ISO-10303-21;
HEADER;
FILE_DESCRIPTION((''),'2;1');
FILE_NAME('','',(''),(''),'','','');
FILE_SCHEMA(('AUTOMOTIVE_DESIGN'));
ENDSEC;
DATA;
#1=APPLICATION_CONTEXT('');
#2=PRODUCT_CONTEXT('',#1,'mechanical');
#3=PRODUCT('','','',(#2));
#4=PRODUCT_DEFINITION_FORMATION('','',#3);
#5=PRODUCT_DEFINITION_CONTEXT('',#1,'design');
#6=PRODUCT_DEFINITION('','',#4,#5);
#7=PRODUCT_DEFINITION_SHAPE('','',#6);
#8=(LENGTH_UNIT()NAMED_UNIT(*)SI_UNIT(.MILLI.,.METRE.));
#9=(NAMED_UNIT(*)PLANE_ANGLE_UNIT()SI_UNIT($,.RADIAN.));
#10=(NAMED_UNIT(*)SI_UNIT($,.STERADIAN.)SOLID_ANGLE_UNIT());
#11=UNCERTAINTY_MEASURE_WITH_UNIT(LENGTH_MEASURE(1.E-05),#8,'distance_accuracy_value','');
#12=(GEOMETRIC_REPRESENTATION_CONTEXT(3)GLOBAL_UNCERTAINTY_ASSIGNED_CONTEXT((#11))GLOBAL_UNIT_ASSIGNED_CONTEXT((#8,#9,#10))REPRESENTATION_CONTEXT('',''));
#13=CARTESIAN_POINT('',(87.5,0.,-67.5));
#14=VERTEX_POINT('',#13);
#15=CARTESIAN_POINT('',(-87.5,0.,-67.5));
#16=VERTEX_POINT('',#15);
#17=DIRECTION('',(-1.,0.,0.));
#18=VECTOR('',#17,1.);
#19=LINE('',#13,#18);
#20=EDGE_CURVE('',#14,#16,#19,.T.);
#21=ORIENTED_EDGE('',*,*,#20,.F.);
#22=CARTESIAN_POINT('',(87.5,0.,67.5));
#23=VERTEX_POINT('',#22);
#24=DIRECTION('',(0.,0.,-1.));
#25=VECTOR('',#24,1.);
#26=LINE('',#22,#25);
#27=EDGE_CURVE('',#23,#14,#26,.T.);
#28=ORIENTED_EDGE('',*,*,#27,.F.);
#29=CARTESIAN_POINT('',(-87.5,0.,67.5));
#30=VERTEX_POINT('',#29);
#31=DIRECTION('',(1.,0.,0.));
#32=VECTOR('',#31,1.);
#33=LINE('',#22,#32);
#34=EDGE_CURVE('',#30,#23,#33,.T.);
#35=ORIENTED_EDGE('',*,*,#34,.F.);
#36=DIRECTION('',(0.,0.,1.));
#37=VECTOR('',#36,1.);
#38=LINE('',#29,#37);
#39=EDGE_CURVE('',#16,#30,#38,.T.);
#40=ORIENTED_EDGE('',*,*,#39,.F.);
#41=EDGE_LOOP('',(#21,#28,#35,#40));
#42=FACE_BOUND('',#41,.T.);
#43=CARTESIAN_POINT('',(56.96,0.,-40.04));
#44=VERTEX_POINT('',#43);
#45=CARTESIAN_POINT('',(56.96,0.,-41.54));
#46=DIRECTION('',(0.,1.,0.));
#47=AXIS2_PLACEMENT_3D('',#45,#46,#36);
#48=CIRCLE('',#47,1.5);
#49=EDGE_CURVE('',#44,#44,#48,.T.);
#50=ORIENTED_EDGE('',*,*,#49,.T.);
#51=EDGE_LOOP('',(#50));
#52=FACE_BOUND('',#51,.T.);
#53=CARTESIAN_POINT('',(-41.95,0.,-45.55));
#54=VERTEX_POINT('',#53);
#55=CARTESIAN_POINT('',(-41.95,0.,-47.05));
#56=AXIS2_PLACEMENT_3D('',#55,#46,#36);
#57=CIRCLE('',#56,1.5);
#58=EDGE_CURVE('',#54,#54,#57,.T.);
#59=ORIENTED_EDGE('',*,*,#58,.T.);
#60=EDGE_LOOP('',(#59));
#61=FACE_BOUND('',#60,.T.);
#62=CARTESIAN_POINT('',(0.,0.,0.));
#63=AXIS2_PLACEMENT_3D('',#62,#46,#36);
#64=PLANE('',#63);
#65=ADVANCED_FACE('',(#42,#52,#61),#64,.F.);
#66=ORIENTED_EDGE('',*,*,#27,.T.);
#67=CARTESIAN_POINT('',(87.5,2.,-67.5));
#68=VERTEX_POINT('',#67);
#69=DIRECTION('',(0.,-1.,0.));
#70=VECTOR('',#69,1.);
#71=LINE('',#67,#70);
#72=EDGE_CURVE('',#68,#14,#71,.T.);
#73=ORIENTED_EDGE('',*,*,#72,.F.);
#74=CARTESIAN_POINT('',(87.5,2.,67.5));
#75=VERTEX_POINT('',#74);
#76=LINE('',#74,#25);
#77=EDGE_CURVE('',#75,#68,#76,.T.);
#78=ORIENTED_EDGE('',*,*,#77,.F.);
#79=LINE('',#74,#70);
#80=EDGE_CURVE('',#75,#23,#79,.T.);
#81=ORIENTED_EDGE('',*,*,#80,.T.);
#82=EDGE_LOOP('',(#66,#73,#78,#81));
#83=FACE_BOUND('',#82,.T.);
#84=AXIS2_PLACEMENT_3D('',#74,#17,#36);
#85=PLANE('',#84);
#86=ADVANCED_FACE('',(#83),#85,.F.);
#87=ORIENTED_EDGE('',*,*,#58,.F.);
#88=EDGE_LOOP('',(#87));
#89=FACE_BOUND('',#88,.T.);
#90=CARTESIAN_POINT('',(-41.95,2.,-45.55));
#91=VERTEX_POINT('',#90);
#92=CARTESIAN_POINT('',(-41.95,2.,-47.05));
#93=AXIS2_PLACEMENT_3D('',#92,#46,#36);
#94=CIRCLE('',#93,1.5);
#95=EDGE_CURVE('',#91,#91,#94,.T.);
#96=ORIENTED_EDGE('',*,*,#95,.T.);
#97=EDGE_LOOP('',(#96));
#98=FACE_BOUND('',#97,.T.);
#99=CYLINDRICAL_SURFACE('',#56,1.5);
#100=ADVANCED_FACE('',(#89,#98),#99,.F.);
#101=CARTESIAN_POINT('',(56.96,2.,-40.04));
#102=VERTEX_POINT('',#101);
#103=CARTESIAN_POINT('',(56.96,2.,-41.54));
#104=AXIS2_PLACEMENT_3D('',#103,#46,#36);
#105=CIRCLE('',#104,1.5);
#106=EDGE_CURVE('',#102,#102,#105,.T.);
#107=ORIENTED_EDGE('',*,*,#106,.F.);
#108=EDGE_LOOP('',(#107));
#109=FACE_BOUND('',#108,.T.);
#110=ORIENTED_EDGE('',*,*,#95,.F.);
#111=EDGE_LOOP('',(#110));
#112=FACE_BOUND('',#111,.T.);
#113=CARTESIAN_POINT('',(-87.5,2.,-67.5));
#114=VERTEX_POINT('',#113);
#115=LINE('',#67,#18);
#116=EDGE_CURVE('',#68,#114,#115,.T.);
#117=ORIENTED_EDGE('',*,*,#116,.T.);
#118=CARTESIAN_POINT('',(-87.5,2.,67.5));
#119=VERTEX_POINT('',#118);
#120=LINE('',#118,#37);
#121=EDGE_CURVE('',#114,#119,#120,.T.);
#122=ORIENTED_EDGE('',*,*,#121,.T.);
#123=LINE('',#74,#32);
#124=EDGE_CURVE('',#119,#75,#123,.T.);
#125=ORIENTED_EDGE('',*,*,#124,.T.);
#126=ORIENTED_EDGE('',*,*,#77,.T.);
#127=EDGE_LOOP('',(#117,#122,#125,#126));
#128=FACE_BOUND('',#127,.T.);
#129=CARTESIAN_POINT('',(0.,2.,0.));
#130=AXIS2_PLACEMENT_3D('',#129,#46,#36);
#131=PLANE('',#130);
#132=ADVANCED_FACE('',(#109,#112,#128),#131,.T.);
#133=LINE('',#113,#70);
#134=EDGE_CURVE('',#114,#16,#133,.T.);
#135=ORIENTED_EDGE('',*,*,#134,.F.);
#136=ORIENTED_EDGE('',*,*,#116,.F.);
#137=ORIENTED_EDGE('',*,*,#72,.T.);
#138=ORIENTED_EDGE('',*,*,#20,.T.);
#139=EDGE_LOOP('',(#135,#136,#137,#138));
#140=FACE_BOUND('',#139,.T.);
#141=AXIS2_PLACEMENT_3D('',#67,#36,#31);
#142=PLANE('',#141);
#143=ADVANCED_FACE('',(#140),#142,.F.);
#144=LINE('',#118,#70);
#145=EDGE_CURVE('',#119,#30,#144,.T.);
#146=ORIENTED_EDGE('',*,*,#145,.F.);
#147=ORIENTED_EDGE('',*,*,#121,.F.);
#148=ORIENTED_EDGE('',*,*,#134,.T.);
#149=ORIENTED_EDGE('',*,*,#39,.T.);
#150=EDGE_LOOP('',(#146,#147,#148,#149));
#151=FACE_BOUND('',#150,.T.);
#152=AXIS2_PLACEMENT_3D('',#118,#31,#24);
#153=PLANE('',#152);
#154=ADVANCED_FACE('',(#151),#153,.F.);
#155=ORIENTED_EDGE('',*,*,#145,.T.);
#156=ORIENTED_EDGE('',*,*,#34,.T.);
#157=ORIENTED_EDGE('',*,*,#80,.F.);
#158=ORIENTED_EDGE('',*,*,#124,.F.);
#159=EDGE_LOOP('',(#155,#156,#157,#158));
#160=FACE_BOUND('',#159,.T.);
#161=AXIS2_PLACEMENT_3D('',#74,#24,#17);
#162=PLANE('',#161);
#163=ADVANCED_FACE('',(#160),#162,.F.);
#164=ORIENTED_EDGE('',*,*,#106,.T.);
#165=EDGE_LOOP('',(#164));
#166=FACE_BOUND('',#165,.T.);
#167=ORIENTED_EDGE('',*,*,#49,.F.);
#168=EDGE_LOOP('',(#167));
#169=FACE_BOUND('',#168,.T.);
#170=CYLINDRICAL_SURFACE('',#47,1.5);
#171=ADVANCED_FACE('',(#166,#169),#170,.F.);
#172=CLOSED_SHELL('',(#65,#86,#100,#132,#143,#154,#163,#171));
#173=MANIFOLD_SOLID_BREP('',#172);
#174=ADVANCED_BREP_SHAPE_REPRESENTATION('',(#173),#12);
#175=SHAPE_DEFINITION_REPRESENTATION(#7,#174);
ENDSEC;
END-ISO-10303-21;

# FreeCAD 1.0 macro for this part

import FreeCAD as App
import Part
import Sketcher
from FreeCAD import Vector


def add_polygon(sketch, points):
    """Adds a closed chain of lines whose ends are joined by coincident constraints."""
    first, n = sketch.GeometryCount, len(points)
    for a, b in zip(points, points[1:] + points[:1]):
        sketch.addGeometry(Part.LineSegment(App.Vector(*a, 0), App.Vector(*b, 0)), False)
    for i in range(n):
        sketch.addConstraint(Sketcher.Constraint("Coincident", first + i, 2, first + (i + 1) % n, 1))

doc = App.newDocument("Part")
body = doc.addObject("PartDesign::Body", "Body")

# Sketch on XZ plane
sketch1 = body.newObject("Sketcher::SketchObject", "Sketch")
sketch1.AttachmentSupport = (doc.getObject("XZ_Plane"), [""])
sketch1.MapMode = "FlatFace"
add_polygon(sketch1, [(-88, -68), (-88, 68), (88, 68), (88, -68)])  # lines 0-3
sketch1.addConstraint(Sketcher.Constraint("Vertical", 0))
sketch1.addConstraint(Sketcher.Constraint("Horizontal", 1))
sketch1.addConstraint(Sketcher.Constraint("Vertical", 2))
sketch1.addConstraint(Sketcher.Constraint("Horizontal", 3))
sketch1.addConstraint(Sketcher.Constraint("Symmetric", 0, 2, 2, 2, -1, 1))
sketch1.addConstraint(Sketcher.Constraint("DistanceX", 1, 1, 1, 2, 175.0))
sketch1.addConstraint(Sketcher.Constraint("DistanceY", 0, 1, 0, 2, 135.0))
pad1 = body.newObject("PartDesign::Pad", "Pad")
pad1.Profile = sketch1
pad1.Length = 2
pad1.Reversed = True

# Sketch on XZ plane
sketch2 = body.newObject("Sketcher::SketchObject", "Sketch001")
sketch2.AttachmentSupport = (doc.getObject("XZ_Plane"), [""])
sketch2.MapMode = "FlatFace"
sketch2.AttachmentOffset = App.Placement(Vector(0, 0, -2), App.Rotation())
sketch2.addGeometry(Part.Circle(Vector(-42, -47, 0), Vector(0, 0, 1), 1.5), False)
sketch2.addGeometry(Part.Circle(Vector(57, -41.5, 0), Vector(0, 0, 1), 1.5), False)
sketch2.addConstraint(Sketcher.Constraint("Equal", 0, 1))
sketch2.addConstraint(Sketcher.Constraint("Diameter", 0, 3.0))
sketch2.addConstraint(Sketcher.Constraint("DistanceX", 0, 3, -1, 1, 41.95))
sketch2.addConstraint(Sketcher.Constraint("DistanceY", 0, 3, -1, 1, 47.05))
sketch2.addConstraint(Sketcher.Constraint("DistanceX", -1, 1, 1, 3, 56.96))
sketch2.addConstraint(Sketcher.Constraint("DistanceY", 1, 3, -1, 1, 41.54))
pocket1 = body.newObject("PartDesign::Pocket", "Pocket")
pocket1.Profile = sketch2
pocket1.Type = "ThroughAll"
pocket1.Reversed = True

doc.recompute()
